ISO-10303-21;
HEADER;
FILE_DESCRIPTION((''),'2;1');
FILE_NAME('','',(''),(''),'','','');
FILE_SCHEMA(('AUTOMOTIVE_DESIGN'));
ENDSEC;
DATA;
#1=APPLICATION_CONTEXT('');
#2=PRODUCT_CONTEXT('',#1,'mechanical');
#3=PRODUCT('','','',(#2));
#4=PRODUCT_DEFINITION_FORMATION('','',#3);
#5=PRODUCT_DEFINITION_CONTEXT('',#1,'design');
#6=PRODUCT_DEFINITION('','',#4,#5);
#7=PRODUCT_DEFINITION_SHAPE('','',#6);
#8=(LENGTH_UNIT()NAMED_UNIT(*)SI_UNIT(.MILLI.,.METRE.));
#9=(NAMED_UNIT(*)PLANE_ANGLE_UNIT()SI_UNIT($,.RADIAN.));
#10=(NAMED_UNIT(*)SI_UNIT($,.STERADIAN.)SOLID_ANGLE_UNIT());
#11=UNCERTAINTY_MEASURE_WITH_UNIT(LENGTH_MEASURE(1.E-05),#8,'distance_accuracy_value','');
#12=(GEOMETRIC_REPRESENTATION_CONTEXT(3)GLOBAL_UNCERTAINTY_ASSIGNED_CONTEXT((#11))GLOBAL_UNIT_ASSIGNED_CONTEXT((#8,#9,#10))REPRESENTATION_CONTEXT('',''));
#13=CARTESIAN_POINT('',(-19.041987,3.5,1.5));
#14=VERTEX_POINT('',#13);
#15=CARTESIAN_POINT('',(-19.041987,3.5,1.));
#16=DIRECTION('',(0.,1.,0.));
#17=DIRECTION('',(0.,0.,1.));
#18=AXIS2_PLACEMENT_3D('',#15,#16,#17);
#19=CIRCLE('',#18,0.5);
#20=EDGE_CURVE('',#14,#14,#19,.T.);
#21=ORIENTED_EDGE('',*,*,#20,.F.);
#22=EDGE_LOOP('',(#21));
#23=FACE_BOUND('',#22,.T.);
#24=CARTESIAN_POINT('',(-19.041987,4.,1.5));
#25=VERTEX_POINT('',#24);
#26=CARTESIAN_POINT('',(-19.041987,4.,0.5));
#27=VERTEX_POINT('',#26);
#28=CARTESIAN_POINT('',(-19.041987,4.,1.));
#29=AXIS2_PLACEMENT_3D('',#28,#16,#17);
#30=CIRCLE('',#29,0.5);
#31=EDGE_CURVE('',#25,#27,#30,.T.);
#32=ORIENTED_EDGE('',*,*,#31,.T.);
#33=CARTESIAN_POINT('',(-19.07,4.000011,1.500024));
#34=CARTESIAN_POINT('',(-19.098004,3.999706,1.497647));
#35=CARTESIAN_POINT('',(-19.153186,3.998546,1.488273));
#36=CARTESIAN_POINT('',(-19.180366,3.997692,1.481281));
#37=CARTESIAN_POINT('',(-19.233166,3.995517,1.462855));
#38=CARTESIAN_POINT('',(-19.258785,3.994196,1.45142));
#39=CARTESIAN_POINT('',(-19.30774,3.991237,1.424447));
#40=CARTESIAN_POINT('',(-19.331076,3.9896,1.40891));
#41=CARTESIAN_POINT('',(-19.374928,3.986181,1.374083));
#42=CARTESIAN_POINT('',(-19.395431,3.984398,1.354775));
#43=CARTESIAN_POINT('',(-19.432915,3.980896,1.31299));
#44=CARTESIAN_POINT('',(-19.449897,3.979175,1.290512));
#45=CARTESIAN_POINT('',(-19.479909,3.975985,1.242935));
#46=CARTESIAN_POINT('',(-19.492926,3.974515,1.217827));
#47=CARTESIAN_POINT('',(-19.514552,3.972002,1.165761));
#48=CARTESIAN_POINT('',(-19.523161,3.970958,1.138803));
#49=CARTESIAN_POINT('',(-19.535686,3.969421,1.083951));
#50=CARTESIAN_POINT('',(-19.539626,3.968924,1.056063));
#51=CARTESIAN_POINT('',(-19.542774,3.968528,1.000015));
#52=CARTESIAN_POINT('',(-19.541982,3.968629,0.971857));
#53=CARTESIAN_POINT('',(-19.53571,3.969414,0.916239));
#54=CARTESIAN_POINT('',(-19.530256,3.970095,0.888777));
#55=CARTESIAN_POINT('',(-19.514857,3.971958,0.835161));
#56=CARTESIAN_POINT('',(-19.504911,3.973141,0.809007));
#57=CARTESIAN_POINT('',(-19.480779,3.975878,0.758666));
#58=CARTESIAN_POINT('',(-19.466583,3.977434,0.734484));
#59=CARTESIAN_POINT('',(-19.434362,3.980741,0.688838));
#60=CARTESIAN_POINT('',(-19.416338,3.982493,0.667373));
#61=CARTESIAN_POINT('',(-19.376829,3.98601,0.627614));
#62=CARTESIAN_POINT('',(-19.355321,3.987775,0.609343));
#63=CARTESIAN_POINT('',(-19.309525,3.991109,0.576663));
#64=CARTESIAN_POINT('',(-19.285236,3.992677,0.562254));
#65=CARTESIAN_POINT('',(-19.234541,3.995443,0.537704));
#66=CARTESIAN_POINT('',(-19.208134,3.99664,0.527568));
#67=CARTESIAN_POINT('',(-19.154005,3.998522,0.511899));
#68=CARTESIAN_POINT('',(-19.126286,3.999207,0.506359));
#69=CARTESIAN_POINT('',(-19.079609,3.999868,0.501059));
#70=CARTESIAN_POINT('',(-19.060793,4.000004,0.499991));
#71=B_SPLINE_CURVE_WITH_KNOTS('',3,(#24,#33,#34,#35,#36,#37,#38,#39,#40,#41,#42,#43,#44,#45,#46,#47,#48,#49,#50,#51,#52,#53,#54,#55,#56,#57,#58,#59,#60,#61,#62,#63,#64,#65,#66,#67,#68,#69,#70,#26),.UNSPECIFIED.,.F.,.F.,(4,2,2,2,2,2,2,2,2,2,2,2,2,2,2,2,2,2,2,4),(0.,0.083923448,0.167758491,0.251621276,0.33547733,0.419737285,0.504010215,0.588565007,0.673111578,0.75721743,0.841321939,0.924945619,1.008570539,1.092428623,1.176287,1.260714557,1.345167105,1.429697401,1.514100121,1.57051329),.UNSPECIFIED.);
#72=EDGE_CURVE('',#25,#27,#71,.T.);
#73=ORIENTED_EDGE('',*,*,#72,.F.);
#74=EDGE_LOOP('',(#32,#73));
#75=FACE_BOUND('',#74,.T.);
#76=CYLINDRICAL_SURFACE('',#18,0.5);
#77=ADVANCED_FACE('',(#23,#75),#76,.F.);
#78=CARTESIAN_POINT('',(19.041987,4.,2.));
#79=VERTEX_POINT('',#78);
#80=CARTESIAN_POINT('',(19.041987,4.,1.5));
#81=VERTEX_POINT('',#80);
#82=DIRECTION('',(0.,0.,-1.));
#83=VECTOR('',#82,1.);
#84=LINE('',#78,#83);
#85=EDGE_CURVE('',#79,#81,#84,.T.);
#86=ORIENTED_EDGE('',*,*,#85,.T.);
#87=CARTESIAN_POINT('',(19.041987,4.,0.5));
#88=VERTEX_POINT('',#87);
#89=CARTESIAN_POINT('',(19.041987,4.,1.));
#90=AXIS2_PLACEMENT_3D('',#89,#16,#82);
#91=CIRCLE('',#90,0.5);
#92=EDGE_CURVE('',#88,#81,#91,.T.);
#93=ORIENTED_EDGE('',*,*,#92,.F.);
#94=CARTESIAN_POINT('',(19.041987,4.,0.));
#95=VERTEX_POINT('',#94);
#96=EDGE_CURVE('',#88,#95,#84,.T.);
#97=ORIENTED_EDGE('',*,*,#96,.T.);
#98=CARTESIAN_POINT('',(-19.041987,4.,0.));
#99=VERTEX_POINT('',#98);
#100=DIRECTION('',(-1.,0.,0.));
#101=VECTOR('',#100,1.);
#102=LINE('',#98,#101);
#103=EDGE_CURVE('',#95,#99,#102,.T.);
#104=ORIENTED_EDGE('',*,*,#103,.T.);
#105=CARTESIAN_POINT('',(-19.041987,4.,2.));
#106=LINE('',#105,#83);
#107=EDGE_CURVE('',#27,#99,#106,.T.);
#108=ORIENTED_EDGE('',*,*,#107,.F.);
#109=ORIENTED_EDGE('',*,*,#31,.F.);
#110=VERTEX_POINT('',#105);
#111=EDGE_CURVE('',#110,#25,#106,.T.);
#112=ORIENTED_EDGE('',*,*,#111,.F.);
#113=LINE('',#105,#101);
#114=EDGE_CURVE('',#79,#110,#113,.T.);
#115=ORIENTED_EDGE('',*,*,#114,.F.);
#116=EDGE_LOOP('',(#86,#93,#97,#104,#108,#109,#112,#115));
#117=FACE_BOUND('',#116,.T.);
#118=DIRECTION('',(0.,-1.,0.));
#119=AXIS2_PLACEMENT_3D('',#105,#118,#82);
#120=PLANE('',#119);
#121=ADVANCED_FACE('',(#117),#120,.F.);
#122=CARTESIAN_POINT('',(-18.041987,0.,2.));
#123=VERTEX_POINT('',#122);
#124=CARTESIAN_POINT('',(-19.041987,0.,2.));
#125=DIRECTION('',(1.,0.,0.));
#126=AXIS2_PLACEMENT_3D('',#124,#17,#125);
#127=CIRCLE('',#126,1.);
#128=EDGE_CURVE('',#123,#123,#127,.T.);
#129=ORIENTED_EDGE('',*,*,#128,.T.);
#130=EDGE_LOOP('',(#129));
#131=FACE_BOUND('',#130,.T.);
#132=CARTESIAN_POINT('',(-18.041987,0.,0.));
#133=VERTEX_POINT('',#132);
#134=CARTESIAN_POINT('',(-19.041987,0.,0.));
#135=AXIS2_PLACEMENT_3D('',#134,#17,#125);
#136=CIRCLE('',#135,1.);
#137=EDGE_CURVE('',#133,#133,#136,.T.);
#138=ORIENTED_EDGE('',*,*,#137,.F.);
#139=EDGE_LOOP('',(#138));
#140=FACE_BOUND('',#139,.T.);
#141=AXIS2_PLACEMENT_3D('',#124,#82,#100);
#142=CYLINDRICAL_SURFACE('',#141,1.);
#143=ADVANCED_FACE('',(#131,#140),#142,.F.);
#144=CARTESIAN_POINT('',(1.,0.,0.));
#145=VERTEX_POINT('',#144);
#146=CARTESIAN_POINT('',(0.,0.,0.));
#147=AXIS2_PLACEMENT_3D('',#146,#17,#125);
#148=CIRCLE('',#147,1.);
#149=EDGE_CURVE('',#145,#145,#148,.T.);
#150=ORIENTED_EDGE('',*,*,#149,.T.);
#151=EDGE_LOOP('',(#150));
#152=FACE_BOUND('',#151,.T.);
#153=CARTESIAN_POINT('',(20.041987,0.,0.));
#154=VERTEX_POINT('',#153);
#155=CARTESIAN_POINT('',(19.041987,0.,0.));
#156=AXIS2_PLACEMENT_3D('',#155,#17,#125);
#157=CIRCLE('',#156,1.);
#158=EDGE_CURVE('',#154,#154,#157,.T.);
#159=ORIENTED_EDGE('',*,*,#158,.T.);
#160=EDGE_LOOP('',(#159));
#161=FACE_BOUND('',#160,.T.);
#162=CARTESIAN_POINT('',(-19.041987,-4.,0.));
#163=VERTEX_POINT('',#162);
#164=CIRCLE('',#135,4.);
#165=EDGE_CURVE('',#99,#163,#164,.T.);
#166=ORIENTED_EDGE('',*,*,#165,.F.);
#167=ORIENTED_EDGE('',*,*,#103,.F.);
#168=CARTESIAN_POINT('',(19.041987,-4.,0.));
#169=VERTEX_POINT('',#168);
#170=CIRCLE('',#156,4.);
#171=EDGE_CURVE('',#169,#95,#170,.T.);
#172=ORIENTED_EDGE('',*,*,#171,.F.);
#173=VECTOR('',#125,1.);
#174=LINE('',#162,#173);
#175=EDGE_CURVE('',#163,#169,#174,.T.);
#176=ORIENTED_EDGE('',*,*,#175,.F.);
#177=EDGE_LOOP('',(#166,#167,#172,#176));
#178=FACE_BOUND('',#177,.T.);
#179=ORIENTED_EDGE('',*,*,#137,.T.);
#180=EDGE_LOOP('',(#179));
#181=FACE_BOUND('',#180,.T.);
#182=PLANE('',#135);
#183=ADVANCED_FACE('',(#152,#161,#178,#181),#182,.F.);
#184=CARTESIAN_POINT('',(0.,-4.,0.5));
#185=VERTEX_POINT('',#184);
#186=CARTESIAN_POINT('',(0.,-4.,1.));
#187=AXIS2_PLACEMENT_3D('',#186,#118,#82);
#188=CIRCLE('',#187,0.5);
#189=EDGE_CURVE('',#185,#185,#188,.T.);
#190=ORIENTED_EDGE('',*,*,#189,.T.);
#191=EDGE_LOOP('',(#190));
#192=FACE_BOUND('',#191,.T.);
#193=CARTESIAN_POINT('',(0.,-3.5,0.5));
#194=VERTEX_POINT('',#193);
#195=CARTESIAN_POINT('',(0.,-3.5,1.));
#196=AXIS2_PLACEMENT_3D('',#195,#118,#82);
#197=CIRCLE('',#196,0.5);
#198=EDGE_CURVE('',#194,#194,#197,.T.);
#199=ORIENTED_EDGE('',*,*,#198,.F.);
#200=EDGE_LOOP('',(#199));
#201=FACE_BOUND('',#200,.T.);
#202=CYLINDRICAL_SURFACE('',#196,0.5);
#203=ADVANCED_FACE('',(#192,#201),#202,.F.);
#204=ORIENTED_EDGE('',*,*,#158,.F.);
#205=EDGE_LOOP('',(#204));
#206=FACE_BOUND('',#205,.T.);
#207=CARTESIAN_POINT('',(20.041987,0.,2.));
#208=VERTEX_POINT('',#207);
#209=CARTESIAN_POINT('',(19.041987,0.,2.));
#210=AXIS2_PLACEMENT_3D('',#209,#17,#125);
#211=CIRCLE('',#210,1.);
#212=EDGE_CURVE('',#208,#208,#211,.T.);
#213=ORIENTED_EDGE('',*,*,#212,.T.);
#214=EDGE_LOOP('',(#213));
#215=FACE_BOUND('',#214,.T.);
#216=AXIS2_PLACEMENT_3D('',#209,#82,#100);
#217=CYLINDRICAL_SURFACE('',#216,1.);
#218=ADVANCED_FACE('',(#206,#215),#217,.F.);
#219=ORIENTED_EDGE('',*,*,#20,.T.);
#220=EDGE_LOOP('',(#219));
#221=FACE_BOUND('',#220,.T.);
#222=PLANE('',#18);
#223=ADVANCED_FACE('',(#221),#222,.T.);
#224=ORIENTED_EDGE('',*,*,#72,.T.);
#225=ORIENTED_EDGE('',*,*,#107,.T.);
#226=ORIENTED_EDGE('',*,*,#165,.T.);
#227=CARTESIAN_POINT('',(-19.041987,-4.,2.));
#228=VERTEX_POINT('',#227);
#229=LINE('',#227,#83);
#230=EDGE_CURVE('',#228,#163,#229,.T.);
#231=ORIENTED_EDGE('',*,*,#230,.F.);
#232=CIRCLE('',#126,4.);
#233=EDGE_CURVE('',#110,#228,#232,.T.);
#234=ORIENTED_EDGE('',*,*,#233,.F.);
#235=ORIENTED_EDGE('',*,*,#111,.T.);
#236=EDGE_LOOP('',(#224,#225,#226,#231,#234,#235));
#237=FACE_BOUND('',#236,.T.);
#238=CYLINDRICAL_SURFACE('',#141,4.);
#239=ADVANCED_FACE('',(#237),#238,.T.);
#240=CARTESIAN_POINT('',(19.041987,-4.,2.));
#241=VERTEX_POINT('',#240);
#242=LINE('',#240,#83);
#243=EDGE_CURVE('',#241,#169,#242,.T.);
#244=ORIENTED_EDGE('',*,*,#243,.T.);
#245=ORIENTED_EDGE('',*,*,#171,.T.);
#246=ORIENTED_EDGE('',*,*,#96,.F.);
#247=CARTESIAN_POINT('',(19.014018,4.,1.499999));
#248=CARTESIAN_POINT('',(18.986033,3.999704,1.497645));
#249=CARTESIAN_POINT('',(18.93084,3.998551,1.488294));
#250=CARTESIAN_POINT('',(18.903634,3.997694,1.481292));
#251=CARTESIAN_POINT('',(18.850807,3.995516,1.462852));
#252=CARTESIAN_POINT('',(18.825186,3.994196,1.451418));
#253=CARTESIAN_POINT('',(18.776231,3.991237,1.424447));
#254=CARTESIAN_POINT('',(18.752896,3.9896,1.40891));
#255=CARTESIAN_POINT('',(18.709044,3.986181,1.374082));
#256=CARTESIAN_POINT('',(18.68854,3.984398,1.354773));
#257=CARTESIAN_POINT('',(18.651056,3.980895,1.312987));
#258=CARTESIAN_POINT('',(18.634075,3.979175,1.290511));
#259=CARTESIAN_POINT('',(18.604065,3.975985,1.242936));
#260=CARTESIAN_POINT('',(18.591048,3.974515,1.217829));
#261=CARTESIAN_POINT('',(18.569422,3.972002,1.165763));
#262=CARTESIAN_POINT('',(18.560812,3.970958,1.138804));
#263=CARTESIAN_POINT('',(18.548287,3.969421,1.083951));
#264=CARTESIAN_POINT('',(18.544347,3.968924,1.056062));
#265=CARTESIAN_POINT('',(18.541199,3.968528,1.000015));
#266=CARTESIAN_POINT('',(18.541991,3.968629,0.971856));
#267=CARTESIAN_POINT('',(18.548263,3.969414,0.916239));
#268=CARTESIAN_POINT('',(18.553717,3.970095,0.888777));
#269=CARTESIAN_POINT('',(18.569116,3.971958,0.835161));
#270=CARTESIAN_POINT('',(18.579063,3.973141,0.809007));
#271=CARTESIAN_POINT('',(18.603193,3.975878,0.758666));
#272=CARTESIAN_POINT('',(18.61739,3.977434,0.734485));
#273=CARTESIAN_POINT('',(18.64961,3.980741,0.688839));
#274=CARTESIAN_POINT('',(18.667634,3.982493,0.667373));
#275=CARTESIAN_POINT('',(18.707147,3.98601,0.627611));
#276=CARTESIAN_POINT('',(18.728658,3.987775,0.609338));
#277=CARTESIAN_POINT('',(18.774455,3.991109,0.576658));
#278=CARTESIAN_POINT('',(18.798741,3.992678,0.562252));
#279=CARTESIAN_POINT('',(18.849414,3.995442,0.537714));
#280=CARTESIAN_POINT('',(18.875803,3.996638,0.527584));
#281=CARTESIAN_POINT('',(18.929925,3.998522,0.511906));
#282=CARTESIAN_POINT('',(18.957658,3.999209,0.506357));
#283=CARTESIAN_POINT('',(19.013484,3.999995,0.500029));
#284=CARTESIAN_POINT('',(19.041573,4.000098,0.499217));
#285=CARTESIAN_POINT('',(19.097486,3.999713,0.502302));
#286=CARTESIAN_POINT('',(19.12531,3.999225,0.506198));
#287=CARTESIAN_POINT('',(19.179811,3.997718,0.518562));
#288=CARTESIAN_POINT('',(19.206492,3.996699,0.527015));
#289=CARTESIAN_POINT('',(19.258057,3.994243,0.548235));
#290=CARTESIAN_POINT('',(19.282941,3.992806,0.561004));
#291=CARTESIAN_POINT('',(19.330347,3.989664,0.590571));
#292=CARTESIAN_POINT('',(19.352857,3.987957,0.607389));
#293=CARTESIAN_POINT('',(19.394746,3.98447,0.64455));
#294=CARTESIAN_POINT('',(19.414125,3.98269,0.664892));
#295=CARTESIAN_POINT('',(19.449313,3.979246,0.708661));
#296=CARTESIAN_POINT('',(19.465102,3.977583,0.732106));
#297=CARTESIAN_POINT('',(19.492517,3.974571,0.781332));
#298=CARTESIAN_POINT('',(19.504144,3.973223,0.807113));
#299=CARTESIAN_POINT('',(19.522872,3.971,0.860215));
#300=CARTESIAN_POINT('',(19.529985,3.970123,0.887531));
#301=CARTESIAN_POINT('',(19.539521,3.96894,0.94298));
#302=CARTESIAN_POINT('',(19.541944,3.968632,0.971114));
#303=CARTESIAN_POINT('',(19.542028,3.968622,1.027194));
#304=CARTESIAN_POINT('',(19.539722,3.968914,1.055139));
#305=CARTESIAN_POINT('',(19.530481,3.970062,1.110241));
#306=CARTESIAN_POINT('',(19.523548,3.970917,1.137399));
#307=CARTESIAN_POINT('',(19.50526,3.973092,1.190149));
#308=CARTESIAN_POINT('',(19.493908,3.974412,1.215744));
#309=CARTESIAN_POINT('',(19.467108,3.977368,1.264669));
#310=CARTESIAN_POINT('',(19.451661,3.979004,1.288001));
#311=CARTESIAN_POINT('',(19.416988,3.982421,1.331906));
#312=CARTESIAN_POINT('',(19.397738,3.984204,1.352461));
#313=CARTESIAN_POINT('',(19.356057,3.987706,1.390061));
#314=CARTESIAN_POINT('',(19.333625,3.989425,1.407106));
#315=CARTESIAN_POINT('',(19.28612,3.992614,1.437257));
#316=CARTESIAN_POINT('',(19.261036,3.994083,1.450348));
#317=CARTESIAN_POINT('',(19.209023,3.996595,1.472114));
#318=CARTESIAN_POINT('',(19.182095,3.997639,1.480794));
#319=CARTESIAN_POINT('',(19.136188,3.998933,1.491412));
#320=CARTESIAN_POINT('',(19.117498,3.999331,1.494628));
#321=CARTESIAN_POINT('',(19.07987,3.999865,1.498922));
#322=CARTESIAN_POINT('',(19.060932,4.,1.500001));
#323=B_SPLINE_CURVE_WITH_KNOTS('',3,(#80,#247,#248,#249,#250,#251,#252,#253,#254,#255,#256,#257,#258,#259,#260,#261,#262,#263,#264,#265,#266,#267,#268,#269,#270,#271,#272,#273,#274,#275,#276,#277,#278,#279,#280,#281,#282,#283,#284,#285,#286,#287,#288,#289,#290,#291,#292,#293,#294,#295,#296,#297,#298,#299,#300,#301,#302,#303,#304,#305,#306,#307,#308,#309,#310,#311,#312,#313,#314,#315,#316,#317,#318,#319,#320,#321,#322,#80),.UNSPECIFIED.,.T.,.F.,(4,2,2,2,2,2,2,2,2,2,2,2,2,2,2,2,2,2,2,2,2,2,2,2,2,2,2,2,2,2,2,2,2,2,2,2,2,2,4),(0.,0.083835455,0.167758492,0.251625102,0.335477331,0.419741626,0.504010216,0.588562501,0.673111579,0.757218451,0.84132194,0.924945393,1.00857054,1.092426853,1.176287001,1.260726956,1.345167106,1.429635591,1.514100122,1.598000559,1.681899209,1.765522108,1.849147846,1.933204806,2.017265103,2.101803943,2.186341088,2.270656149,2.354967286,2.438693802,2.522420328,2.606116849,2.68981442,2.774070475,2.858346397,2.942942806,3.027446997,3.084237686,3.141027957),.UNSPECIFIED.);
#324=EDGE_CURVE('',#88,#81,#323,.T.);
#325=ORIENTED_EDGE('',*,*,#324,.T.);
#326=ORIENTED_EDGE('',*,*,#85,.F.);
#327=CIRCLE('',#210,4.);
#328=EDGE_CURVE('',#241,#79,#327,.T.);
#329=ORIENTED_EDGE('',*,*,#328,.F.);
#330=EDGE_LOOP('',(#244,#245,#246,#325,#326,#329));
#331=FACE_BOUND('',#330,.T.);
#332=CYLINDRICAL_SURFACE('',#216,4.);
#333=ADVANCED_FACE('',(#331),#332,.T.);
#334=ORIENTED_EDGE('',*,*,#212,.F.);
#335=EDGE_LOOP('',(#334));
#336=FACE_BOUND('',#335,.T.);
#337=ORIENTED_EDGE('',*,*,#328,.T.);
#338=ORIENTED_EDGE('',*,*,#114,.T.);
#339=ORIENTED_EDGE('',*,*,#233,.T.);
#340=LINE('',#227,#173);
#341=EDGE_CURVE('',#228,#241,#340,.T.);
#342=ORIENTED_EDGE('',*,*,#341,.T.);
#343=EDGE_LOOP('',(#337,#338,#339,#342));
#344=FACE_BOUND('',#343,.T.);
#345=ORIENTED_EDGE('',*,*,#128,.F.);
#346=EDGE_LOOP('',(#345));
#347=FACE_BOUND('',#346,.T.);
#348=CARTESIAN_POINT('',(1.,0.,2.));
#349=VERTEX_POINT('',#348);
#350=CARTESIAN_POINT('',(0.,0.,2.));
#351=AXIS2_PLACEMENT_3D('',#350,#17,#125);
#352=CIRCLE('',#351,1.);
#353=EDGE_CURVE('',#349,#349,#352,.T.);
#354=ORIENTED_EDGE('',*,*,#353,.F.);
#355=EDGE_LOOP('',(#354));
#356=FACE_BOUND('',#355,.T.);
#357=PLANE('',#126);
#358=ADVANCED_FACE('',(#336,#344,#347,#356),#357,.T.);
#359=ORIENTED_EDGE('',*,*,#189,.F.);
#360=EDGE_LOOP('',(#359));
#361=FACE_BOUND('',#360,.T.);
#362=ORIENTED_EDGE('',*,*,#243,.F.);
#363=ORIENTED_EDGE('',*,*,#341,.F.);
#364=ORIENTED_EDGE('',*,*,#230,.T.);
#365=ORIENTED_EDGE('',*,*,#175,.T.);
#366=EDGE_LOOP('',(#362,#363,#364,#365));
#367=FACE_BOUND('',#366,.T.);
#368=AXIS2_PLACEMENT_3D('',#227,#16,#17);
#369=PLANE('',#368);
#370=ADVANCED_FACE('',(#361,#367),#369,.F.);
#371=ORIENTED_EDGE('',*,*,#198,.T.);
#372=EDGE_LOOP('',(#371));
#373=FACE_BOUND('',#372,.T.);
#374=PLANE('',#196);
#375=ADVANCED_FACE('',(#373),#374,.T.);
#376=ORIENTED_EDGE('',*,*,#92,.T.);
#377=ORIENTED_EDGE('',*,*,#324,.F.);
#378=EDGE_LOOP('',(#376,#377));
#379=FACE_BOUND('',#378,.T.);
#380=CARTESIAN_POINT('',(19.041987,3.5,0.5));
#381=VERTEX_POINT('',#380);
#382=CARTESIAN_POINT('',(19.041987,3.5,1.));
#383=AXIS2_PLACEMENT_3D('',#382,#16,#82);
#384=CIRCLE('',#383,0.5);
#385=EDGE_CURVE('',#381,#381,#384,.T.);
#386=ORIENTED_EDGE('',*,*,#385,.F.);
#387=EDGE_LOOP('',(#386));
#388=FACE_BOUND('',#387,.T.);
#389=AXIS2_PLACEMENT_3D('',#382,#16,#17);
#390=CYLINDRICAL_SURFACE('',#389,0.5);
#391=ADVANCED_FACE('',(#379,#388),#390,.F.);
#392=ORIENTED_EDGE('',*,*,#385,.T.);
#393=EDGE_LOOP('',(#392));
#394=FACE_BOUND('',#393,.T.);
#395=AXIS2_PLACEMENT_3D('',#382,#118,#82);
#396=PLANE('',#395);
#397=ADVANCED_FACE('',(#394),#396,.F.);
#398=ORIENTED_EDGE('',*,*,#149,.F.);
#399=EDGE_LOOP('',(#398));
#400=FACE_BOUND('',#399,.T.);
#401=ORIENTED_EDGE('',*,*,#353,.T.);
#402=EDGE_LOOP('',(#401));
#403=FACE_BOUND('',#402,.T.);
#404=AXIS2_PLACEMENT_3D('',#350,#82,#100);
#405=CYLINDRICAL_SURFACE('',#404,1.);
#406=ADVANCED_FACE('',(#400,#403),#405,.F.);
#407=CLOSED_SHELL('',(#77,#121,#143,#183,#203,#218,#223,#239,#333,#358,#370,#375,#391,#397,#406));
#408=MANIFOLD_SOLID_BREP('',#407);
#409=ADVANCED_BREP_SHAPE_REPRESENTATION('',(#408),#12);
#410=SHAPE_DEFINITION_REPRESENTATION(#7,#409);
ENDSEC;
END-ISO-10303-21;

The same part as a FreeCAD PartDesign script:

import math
import FreeCAD as App
import Part
import Sketcher

V = App.Vector
Q = App.Units.Quantity

doc = App.newDocument("Part")
body = doc.addObject("PartDesign::Body", "Body")

# Sketch on XY plane
sketch1 = body.newObject("Sketcher::SketchObject", "Sketch")
sketch1.AttachmentSupport = (doc.getObject("XY_Plane"), [""])
sketch1.MapMode = "FlatFace"
sketch1.addGeometry(Part.LineSegment(V(19, 4, 0), V(-19, 4, 0)), False)
sketch1.addGeometry(Part.ArcOfCircle(Part.Circle(V(-19, 0, 0), V(0, 0, 1), 4), math.radians(90), math.radians(270)), False)
sketch1.addGeometry(Part.LineSegment(V(-19, -4, 0), V(19, -4, 0)), False)
sketch1.addGeometry(Part.ArcOfCircle(Part.Circle(V(19, 0, 0), V(0, 0, 1), 4), math.radians(-90), math.radians(90)), False)
sketch1.addGeometry(Part.Circle(V(19, 0, 0), V(0, 0, 1), 1), False)
sketch1.addGeometry(Part.Circle(V(0, 0, 0), V(0, 0, 1), 1), False)
sketch1.addGeometry(Part.Circle(V(-19, 0, 0), V(0, 0, 1), 1), False)
sketch1.addConstraint(Sketcher.Constraint("Tangent", 0, 2, 1, 1))
sketch1.addConstraint(Sketcher.Constraint("Tangent", 1, 2, 2, 1))
sketch1.addConstraint(Sketcher.Constraint("Tangent", 2, 2, 3, 1))
sketch1.addConstraint(Sketcher.Constraint("Tangent", 3, 2, 0, 1))
sketch1.addConstraint(Sketcher.Constraint("Horizontal", 0))
sketch1.addConstraint(Sketcher.Constraint("Horizontal", 2))
sketch1.addConstraint(Sketcher.Constraint("Coincident", 5, 3, -1, 1))
sketch1.addConstraint(Sketcher.Constraint("Coincident", 4, 3, 3, 3))
sketch1.addConstraint(Sketcher.Constraint("Coincident", 6, 3, 1, 3))
sketch1.addConstraint(Sketcher.Constraint("Equal", 4, 5))
sketch1.addConstraint(Sketcher.Constraint("Equal", 5, 6))
sketch1.addConstraint(Sketcher.Constraint("Symmetric", 1, 3, 3, 3, -1, 1))
sketch1.addConstraint(Sketcher.Constraint("Diameter", 4, Q("2 mm")))
sketch1.addConstraint(Sketcher.Constraint("Radius", 1, Q("4 mm")))
sketch1.addConstraint(Sketcher.Constraint("DistanceX", 0, 2, 0, 1, Q("38.083973 mm")))
pad1 = body.newObject("PartDesign::Pad", "Pad")
pad1.Profile = sketch1
pad1.Length = 2

# Sketch on XZ plane
sketch2 = body.newObject("Sketcher::SketchObject", "Sketch001")
sketch2.AttachmentSupport = (doc.getObject("XZ_Plane"), [""])
sketch2.MapMode = "FlatFace"
sketch2.AttachmentOffset = App.Placement(V(0, 0, -4), App.Rotation())
sketch2.addGeometry(Part.Circle(V(-19, 1, 0), V(0, 0, 1), 0.5), False)
sketch2.addGeometry(Part.Circle(V(19, 1, 0), V(0, 0, 1), 0.5), False)
sketch2.addConstraint(Sketcher.Constraint("Equal", 0, 1))
sketch2.addConstraint(Sketcher.Constraint("Symmetric", 0, 3, 1, 3, -2))
sketch2.addConstraint(Sketcher.Constraint("Diameter", 0, Q("1 mm")))
sketch2.addConstraint(Sketcher.Constraint("DistanceY", -1, 1, 0, 3, Q("1 mm")))
sketch2.addConstraint(Sketcher.Constraint("DistanceX", 0, 3, -1, 1, Q("19.041987 mm")))
pocket1 = body.newObject("PartDesign::Pocket", "Pocket")
pocket1.Profile = sketch2
pocket1.Length = 0.5
pocket1.Reversed = True

# Sketch on XZ plane
sketch3 = body.newObject("Sketcher::SketchObject", "Sketch002")
sketch3.AttachmentSupport = (doc.getObject("XZ_Plane"), [""])
sketch3.MapMode = "FlatFace"
sketch3.AttachmentOffset = App.Placement(V(0, 0, 4), App.Rotation())
sketch3.addGeometry(Part.Circle(V(0, 1, 0), V(0, 0, 1), 0.5), False)
sketch3.addConstraint(Sketcher.Constraint("PointOnObject", 0, 3, -2))
sketch3.addConstraint(Sketcher.Constraint("Diameter", 0, Q("1 mm")))
sketch3.addConstraint(Sketcher.Constraint("DistanceY", -1, 1, 0, 3, Q("1 mm")))
pocket2 = body.newObject("PartDesign::Pocket", "Pocket001")
pocket2.Profile = sketch3
pocket2.Length = 0.5

doc.recompute()
